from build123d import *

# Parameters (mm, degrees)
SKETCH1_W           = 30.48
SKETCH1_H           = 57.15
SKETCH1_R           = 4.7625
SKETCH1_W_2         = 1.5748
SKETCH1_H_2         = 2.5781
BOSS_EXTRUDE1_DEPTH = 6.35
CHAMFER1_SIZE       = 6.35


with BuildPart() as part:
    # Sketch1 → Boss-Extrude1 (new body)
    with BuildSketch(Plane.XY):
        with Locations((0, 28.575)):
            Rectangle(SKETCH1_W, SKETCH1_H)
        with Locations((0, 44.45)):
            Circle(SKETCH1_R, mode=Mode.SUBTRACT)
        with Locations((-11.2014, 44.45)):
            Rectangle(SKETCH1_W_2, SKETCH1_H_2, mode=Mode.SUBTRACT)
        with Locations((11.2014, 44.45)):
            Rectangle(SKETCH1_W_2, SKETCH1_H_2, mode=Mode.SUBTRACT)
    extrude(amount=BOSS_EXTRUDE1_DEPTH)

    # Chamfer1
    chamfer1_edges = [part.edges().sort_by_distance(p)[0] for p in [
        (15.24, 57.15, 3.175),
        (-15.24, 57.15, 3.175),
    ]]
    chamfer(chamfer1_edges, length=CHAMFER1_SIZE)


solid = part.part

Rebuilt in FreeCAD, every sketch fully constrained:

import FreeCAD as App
import Part
import Sketcher
Q = App.Units.Quantity


def edges_at(feature, points):
    """Names of the edges that pass closest to the given points."""
    edges = feature.Shape.Edges
    near = lambda p: min(range(len(edges)), key=lambda i: edges[i].distToShape(Part.Vertex(*p))[0])
    return sorted({f"Edge{near(p) + 1}" for p in points})

doc = App.newDocument("Part")
body = doc.addObject("PartDesign::Body", "Body")

# Sketch on XY plane
sketch1 = doc.addObject("Sketcher::SketchObject", "Sketch")
body.addObject(sketch1)
sketch1.AttachmentSupport = (doc.XY_Plane, [""])
sketch1.MapMode = "FlatFace"
sketch1.addGeometry([
    Part.LineSegment(App.Vector(-15.2, 57.1, 0), App.Vector(-15.2, 0, 0)),  # 0
    Part.LineSegment(App.Vector(-15.2, 0, 0), App.Vector(15.2, 0, 0)),  # 1
    Part.LineSegment(App.Vector(15.2, 0, 0), App.Vector(15.2, 57.1, 0)),  # 2
    Part.LineSegment(App.Vector(15.2, 57.1, 0), App.Vector(-15.2, 57.1, 0)),  # 3
    Part.LineSegment(App.Vector(-10.4, 43.2, 0), App.Vector(-12, 43.2, 0)),  # 4
    Part.LineSegment(App.Vector(-12, 43.2, 0), App.Vector(-12, 45.7, 0)),  # 5
    Part.LineSegment(App.Vector(-12, 45.7, 0), App.Vector(-10.4, 45.7, 0)),  # 6
    Part.LineSegment(App.Vector(-10.4, 45.7, 0), App.Vector(-10.4, 43.2, 0)),  # 7
    Part.Circle(App.Vector(0, 44.5, 0), App.Vector(0, 0, 1), 4.8),  # 8
    Part.LineSegment(App.Vector(12, 43.2, 0), App.Vector(10.4, 43.2, 0)),  # 9
    Part.LineSegment(App.Vector(10.4, 43.2, 0), App.Vector(10.4, 45.7, 0)),  # 10
    Part.LineSegment(App.Vector(10.4, 45.7, 0), App.Vector(12, 45.7, 0)),  # 11
    Part.LineSegment(App.Vector(12, 45.7, 0), App.Vector(12, 43.2, 0)),  # 12
], False)
sketch1.addConstraint([
    Sketcher.Constraint("Coincident", 0, 2, 1, 1),
    Sketcher.Constraint("Coincident", 1, 2, 2, 1),
    Sketcher.Constraint("Coincident", 2, 2, 3, 1),
    Sketcher.Constraint("Coincident", 3, 2, 0, 1),
    Sketcher.Constraint("Coincident", 4, 2, 5, 1),
    Sketcher.Constraint("Coincident", 5, 2, 6, 1),
    Sketcher.Constraint("Coincident", 6, 2, 7, 1),
    Sketcher.Constraint("Coincident", 7, 2, 4, 1),
    Sketcher.Constraint("Coincident", 9, 2, 10, 1),
    Sketcher.Constraint("Coincident", 10, 2, 11, 1),
    Sketcher.Constraint("Coincident", 11, 2, 12, 1),
    Sketcher.Constraint("Coincident", 12, 2, 9, 1),
    Sketcher.Constraint("Vertical", 0),
    Sketcher.Constraint("Horizontal", 1),
    Sketcher.Constraint("Vertical", 2),
    Sketcher.Constraint("Horizontal", 3),
    Sketcher.Constraint("Horizontal", 4),
    Sketcher.Constraint("Vertical", 5),
    Sketcher.Constraint("Horizontal", 6),
    Sketcher.Constraint("Vertical", 7),
    Sketcher.Constraint("Horizontal", 9),
    Sketcher.Constraint("Vertical", 10),
    Sketcher.Constraint("Horizontal", 11),
    Sketcher.Constraint("Vertical", 12),
    Sketcher.Constraint("Symmetric", 0, 2, 1, 2, -1, 1),
    Sketcher.Constraint("Symmetric", 7, 2, 9, 2, -2),
    Sketcher.Constraint("Symmetric", 5, 2, 11, 2, -2),
    Sketcher.Constraint("PointOnObject", 8, 3, -2),
    Sketcher.Constraint("Diameter", 8, Q("0.375 in")),
    Sketcher.Constraint("DistanceX", 1, 1, 1, 2, Q("1.2 in")),
    Sketcher.Constraint("DistanceY", 0, 2, 0, 1, Q("2.25 in")),
    Sketcher.Constraint("DistanceY", 8, 3, 2, 2, Q("0.5 in")),
    Sketcher.Constraint("DistanceX", 4, 2, 4, 1, Q("0.062 in")),
    Sketcher.Constraint("DistanceX", 6, 2, -1, 1, Q("0.41 in")),
    Sketcher.Constraint("DistanceY", 5, 1, 5, 2, Q("0.1015 in")),
    Sketcher.Constraint("DistanceY", -1, 1, 4, 2, 43.16095),
])
pad1 = doc.addObject("PartDesign::Pad", "Pad")
body.addObject(pad1)
pad1.Profile = sketch1
pad1.Length = Q("0.25 in")
doc.recompute()

chamfer = doc.addObject("PartDesign::Chamfer", "Chamfer")
body.addObject(chamfer)
chamfer.Base = (pad1, edges_at(pad1, [(15.24, 57.15, 3.175), (-15.24, 57.15, 3.175)]))
chamfer.Size = Q("0.25 in")

doc.recompute()
